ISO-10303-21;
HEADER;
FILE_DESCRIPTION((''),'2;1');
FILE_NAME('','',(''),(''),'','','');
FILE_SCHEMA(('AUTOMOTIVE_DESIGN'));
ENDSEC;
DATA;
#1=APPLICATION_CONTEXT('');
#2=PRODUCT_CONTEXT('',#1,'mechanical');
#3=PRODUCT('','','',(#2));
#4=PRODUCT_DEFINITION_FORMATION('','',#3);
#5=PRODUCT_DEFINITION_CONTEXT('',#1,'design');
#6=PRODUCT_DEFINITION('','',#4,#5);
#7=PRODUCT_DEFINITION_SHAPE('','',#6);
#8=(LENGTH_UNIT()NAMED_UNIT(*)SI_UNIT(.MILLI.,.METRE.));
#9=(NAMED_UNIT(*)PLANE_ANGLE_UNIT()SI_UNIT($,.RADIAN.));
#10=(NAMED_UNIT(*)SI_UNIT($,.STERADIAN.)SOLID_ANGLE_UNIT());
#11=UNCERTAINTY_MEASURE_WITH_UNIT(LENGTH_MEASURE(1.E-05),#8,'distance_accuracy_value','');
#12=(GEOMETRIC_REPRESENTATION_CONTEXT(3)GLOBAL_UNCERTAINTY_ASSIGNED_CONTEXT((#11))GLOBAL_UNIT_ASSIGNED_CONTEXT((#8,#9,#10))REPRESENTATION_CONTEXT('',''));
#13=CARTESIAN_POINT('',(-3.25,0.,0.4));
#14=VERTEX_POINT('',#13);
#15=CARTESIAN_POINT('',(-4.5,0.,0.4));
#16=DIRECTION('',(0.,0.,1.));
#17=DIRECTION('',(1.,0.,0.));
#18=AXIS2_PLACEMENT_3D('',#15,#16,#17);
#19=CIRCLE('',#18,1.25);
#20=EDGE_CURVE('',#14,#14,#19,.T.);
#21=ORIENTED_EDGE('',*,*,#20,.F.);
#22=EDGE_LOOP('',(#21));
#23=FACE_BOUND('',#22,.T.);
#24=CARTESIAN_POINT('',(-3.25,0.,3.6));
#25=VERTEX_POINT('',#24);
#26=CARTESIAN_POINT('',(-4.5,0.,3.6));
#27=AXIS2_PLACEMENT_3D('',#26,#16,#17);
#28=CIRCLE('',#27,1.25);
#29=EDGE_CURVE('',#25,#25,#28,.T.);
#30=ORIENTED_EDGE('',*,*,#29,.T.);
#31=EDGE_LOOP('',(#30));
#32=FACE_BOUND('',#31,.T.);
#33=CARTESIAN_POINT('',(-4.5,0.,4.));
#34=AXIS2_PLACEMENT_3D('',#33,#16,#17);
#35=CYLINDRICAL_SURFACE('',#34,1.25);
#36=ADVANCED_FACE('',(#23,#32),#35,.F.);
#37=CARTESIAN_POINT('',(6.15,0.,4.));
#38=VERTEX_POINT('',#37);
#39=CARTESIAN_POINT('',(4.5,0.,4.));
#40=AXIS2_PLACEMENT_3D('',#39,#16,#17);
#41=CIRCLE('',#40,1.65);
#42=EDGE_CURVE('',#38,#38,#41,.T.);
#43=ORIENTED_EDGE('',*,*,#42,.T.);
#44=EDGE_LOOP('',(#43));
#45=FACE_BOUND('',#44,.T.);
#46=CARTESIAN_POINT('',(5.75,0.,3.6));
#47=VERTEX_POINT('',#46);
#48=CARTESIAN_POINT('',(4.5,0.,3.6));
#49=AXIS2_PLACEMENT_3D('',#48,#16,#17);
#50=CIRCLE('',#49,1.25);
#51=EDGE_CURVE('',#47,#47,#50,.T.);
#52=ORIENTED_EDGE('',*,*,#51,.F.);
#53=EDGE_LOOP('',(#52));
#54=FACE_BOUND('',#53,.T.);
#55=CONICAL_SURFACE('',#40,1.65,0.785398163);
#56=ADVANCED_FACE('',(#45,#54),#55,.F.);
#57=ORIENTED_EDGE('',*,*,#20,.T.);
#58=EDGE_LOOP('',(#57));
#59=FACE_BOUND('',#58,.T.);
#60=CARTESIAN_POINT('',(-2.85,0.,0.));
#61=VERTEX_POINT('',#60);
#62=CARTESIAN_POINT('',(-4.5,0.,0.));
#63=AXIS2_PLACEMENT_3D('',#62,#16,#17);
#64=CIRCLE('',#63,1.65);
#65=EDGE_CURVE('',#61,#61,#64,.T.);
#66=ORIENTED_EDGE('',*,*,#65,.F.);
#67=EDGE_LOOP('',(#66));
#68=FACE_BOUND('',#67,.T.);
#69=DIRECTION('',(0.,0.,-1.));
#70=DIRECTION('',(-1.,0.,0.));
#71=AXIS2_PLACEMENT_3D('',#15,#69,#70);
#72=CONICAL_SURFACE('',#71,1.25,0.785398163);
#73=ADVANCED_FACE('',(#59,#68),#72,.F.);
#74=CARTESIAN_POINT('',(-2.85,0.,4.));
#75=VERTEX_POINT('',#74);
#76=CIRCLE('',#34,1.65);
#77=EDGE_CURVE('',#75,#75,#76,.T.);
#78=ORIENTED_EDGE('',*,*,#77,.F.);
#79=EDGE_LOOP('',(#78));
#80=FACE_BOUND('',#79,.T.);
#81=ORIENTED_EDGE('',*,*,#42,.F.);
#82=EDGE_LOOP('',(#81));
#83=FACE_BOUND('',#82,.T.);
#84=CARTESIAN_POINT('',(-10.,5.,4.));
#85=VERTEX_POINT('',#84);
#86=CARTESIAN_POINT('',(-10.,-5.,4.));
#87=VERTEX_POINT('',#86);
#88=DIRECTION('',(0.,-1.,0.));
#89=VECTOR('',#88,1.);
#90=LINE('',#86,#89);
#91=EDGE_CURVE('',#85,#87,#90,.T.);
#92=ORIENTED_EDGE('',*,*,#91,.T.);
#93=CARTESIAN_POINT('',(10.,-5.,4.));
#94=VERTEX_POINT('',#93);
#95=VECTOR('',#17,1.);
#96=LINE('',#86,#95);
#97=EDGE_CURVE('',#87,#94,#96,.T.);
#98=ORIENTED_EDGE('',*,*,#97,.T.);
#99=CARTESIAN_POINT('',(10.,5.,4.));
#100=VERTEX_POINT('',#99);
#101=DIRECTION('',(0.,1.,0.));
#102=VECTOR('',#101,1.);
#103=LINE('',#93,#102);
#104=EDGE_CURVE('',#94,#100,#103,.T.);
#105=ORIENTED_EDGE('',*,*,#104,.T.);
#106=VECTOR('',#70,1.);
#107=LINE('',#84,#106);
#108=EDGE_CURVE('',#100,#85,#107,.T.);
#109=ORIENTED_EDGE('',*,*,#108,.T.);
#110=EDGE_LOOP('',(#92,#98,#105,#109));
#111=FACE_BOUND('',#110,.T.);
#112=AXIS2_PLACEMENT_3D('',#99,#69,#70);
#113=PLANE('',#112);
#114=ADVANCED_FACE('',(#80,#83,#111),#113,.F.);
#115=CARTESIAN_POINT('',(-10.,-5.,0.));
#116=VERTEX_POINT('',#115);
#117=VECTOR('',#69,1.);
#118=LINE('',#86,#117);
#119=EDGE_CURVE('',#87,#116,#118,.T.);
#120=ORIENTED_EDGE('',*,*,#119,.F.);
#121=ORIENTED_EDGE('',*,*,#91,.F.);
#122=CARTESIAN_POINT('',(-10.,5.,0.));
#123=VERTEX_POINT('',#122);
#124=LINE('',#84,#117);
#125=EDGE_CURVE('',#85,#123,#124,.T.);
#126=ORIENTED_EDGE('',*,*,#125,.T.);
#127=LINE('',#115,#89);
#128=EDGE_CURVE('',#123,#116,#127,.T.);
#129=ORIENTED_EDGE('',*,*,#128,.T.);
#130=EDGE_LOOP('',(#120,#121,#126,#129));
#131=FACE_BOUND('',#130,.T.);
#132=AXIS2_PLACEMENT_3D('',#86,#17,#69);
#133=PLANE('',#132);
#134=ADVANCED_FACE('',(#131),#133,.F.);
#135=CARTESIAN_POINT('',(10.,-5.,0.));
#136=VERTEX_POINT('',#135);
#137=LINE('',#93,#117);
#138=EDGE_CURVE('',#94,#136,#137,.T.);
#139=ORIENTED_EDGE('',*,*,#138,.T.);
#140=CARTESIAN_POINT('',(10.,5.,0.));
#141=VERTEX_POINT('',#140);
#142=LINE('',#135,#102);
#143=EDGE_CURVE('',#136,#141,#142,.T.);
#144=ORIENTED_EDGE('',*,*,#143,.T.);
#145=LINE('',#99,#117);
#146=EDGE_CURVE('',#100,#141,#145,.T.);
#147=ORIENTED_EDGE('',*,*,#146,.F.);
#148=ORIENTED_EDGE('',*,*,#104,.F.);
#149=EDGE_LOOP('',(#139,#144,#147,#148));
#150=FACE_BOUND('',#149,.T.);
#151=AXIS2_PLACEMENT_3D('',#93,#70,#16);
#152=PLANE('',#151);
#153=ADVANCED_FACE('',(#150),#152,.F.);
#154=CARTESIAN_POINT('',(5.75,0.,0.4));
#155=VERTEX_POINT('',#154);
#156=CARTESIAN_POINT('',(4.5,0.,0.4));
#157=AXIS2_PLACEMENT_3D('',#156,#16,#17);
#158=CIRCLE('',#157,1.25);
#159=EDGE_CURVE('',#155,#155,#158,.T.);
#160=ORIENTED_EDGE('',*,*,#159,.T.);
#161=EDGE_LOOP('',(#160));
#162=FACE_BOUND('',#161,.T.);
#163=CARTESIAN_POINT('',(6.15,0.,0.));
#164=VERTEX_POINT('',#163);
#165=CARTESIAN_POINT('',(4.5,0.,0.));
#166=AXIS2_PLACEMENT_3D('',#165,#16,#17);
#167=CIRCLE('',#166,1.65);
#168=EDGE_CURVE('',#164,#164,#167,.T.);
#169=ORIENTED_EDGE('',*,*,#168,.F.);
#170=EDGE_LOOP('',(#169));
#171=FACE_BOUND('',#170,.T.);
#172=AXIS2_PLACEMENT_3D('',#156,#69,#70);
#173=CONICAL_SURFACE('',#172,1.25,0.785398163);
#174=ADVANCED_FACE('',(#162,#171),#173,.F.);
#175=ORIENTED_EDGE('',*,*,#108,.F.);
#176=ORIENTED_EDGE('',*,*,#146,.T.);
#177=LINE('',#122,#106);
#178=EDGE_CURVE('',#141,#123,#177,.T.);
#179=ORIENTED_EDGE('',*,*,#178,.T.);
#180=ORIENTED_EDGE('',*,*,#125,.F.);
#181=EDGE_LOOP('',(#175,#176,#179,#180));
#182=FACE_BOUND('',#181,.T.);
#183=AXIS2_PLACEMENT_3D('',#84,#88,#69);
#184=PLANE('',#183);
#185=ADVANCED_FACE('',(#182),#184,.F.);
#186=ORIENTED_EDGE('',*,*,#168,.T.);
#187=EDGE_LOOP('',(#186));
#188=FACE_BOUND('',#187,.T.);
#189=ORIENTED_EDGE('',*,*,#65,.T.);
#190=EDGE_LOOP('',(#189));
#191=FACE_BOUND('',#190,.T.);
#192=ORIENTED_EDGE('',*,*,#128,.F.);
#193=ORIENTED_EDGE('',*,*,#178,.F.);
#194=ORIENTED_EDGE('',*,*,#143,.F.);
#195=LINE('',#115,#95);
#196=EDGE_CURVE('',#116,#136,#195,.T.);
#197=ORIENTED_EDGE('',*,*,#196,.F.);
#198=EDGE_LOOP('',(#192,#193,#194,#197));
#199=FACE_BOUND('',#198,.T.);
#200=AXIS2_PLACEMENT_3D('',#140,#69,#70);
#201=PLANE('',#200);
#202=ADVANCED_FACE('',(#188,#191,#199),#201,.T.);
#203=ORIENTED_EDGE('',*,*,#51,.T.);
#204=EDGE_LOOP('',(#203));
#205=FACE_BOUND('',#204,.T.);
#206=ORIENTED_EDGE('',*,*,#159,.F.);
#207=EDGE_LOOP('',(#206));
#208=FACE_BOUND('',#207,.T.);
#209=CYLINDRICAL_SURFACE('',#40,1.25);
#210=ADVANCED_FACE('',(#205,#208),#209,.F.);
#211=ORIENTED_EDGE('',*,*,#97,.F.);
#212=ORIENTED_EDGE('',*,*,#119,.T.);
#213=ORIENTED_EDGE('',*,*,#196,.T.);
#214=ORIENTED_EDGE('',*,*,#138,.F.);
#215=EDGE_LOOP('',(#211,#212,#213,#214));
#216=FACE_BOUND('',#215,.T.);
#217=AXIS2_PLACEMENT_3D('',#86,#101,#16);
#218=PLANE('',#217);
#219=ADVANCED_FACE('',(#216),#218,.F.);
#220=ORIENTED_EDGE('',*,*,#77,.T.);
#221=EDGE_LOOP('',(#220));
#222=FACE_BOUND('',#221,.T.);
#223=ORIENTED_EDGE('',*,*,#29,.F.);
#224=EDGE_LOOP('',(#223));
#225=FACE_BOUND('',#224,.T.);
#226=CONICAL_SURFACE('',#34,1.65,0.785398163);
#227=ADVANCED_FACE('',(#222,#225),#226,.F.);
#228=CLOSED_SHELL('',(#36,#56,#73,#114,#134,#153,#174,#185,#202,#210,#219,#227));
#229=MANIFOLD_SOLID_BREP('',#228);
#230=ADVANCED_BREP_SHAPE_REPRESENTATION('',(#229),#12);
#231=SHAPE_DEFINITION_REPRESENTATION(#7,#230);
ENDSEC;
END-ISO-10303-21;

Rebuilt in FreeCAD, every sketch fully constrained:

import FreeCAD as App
import Part
import Sketcher
from FreeCAD import Vector
Q = App.Units.Quantity

doc = App.newDocument("Part")
body = doc.addObject("PartDesign::Body", "Body")

sketch1 = doc.addObject("Sketcher::SketchObject", "Sketch")
body.addObject(sketch1)
sketch1.AttachmentSupport = (doc.XY_Plane, [""])
sketch1.MapMode = "FlatFace"
sketch1.addGeometry([
    Part.LineSegment(Vector(-10, 5, 0), Vector(-10, -5, 0)),
    Part.LineSegment(Vector(-10, -5, 0), Vector(10, -5, 0)),
    Part.LineSegment(Vector(10, -5, 0), Vector(10, 5, 0)),
    Part.LineSegment(Vector(10, 5, 0), Vector(-10, 5, 0)),
], False)
sketch1.addConstraint([
    Sketcher.Constraint("Coincident", 0, 2, 1, 1),
    Sketcher.Constraint("Coincident", 1, 2, 2, 1),
    Sketcher.Constraint("Coincident", 2, 2, 3, 1),
    Sketcher.Constraint("Coincident", 3, 2, 0, 1),
    Sketcher.Constraint("Vertical", 0),
    Sketcher.Constraint("Horizontal", 1),
    Sketcher.Constraint("Vertical", 2),
    Sketcher.Constraint("Horizontal", 3),
    Sketcher.Constraint("Symmetric", 0, 2, 2, 2, -1, 1),
    Sketcher.Constraint("DistanceX", 1, 1, 1, 2, Q("20 mm")),
    Sketcher.Constraint("DistanceY", 0, 2, 0, 1, Q("10 mm")),
])
pad1 = doc.addObject("PartDesign::Pad", "Pad")
body.addObject(pad1)
pad1.Profile = sketch1
pad1.Length = 4

sketch2 = doc.addObject("Sketcher::SketchObject", "Sketch001")
body.addObject(sketch2)
sketch2.AttachmentSupport = (doc.YZ_Plane, [""])
sketch2.MapMode = "FlatFace"
sketch2.AttachmentOffset = App.Placement(Vector(0, 0, -4.5), App.Rotation())
sketch2.addGeometry([
    Part.LineSegment(Vector(0, 0, 0), Vector(0, 4, 0)),
    Part.LineSegment(Vector(0, 4, 0), Vector(-1.6, 4, 0)),
    Part.LineSegment(Vector(-1.6, 4, 0), Vector(-1.2, 3.6, 0)),
    Part.LineSegment(Vector(-1.2, 3.6, 0), Vector(-1.2, 0.4, 0)),
    Part.LineSegment(Vector(-1.2, 0.4, 0), Vector(-1.6, 0, 0)),
    Part.LineSegment(Vector(-1.6, 0, 0), Vector(0, 0, 0)),
], False)
sketch2.addConstraint([
    Sketcher.Constraint("Coincident", 0, 2, 1, 1),
    Sketcher.Constraint("Coincident", 1, 2, 2, 1),
    Sketcher.Constraint("Coincident", 2, 2, 3, 1),
    Sketcher.Constraint("Coincident", 3, 2, 4, 1),
    Sketcher.Constraint("Coincident", 4, 2, 5, 1),
    Sketcher.Constraint("Coincident", 5, 2, 0, 1),
    Sketcher.Constraint("Vertical", 0),
    Sketcher.Constraint("Horizontal", 1),
    Sketcher.Constraint("Vertical", 3),
    Sketcher.Constraint("Horizontal", 5),
    Sketcher.Constraint("Coincident", 5, 2, -1, 1),
    Sketcher.Constraint("Perpendicular", 2, 4),
    Sketcher.Constraint("Vertical", 1, 2, 4, 2),
    Sketcher.Constraint("Equal", 2, 4),
    Sketcher.Constraint("DistanceY", 0, 1, 0, 2, Q("4 mm")),
    Sketcher.Constraint("DistanceY", 3, 2, 3, 1, Q("3.2 mm")),
    Sketcher.Constraint("DistanceX", 1, 2, 1, 1, Q("1.65 mm")),
])
groove = doc.addObject("PartDesign::Groove", "Groove")
body.addObject(groove)
groove.Profile = sketch2
groove.ReferenceAxis = (sketch2, ["V_Axis"])
groove.Angle = 360
doc.recompute()

linearpattern = doc.addObject("PartDesign::LinearPattern", "LinearPattern")
body.addObject(linearpattern)
linearpattern.Originals = [groove]
linearpattern.Direction = (doc.X_Axis, [""])
linearpattern.Mode = "offset"
linearpattern.Offset = 9
linearpattern.Occurrences = 2
body.Tip = linearpattern

doc.recompute()
